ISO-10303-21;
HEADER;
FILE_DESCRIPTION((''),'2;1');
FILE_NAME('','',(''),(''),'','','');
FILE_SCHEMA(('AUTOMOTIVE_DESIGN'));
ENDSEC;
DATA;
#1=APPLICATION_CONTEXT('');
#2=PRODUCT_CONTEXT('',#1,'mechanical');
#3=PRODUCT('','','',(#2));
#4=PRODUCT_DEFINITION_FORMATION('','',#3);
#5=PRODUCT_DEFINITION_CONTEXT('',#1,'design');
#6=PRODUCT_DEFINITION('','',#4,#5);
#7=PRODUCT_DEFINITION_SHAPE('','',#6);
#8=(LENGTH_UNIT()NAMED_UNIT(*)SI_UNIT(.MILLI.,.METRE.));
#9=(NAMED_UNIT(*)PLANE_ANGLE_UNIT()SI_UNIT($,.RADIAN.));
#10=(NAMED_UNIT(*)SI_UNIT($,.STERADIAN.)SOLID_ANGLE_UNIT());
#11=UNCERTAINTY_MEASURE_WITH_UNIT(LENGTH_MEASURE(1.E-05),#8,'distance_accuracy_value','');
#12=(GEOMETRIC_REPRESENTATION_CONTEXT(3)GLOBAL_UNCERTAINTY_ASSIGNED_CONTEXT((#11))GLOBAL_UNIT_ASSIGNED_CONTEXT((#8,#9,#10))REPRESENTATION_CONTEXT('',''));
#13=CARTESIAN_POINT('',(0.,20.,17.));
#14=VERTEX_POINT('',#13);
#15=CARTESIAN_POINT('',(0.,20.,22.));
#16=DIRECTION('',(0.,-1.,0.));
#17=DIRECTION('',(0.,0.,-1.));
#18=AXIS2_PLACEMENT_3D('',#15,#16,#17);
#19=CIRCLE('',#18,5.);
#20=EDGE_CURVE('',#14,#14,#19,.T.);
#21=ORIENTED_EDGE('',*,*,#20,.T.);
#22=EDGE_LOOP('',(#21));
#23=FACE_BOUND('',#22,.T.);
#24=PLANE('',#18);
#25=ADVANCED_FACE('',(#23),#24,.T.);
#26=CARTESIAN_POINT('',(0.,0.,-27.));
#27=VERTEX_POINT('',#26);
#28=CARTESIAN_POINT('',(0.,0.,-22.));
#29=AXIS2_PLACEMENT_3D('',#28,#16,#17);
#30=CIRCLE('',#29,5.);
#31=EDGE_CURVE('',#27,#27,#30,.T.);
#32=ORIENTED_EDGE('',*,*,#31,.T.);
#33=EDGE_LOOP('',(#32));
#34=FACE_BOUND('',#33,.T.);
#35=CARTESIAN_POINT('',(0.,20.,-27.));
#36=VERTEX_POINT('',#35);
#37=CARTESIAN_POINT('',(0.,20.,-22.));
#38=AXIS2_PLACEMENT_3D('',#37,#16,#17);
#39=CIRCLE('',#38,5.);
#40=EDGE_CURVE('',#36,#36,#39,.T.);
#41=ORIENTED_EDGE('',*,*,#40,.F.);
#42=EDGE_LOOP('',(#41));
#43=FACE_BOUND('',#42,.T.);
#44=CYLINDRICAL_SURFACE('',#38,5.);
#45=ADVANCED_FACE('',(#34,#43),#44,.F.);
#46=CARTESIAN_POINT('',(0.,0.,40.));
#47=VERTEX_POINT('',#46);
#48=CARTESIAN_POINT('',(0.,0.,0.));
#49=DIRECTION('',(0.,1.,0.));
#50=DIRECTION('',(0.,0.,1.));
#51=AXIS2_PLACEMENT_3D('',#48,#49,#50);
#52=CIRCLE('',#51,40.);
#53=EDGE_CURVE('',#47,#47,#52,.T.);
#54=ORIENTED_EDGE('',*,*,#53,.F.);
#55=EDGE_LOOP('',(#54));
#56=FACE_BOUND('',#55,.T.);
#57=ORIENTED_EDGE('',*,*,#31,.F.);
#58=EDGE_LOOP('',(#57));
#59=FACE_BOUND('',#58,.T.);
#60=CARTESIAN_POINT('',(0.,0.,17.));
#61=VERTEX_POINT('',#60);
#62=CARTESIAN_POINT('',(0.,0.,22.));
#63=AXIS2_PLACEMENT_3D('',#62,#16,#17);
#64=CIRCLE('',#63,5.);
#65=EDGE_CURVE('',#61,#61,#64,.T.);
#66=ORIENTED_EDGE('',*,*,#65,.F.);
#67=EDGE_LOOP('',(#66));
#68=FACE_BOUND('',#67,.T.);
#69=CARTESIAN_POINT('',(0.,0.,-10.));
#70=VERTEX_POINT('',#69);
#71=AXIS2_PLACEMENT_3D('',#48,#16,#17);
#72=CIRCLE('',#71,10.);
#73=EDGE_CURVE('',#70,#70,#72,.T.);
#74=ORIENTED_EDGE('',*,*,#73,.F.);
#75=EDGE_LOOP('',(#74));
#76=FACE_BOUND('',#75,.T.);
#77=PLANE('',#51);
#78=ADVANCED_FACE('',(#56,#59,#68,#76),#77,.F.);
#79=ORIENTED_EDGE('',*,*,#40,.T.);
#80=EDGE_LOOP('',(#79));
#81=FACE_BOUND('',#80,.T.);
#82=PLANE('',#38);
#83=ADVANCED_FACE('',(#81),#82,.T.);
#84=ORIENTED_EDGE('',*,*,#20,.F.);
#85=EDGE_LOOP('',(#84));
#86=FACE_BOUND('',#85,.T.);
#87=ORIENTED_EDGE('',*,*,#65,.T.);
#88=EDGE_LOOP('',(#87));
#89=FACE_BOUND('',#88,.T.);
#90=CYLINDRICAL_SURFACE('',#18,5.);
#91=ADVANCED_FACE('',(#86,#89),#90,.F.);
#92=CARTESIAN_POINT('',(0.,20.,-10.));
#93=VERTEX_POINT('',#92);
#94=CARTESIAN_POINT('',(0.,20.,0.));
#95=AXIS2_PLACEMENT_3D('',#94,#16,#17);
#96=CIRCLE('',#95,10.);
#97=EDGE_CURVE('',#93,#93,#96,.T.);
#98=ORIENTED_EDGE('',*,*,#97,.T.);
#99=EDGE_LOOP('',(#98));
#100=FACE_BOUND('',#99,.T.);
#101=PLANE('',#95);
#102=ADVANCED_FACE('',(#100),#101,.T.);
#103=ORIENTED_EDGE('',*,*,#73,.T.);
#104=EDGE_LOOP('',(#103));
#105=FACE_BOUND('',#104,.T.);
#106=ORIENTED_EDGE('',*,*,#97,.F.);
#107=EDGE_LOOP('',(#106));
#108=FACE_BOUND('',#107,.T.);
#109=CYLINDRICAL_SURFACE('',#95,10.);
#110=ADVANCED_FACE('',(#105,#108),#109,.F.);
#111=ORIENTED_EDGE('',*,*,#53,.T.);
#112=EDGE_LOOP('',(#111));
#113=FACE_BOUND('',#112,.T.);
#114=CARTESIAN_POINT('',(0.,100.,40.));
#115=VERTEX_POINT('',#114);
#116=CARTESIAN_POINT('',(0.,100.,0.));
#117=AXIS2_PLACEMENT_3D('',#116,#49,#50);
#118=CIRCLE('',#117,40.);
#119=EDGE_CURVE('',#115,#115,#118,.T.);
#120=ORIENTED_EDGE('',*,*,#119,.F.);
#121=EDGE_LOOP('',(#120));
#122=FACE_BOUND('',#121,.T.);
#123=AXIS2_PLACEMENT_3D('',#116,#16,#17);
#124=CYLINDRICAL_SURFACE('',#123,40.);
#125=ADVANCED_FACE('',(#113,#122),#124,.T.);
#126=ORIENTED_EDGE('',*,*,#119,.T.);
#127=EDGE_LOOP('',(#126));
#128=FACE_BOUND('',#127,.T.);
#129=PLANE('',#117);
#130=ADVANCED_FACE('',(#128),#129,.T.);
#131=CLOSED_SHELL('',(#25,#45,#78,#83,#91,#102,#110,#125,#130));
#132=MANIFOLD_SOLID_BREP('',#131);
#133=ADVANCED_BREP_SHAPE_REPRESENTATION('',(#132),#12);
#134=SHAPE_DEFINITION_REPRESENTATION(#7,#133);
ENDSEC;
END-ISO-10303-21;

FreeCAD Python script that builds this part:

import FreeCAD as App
import Part
import Sketcher
from FreeCAD import Vector

doc = App.newDocument("Part")
body = doc.addObject("PartDesign::Body", "Body")

# Sketch on XZ plane
sketch1 = doc.addObject("Sketcher::SketchObject", "Sketch")
body.addObject(sketch1)
sketch1.AttachmentSupport = (doc.XZ_Plane, [""])
sketch1.MapMode = "FlatFace"
sketch1.addGeometry(Part.Circle(Vector(0, 0, 0), Vector(0, 0, 1), 40), False)
sketch1.addConstraint([
    Sketcher.Constraint("Coincident", 0, 3, -1, 1),
    Sketcher.Constraint("Diameter", 0, 80.0),
])
pad1 = doc.addObject("PartDesign::Pad", "Pad")
body.addObject(pad1)
pad1.Profile = sketch1
pad1.Length = 100
pad1.Reversed = True

# Sketch on XZ plane
sketch2 = doc.addObject("Sketcher::SketchObject", "Sketch001")
body.addObject(sketch2)
sketch2.AttachmentSupport = (doc.XZ_Plane, [""])
sketch2.MapMode = "FlatFace"
sketch2.addGeometry([
    Part.Circle(Vector(0, 0, 0), Vector(0, 0, 1), 10),
    Part.Circle(Vector(0, 22, 0), Vector(0, 0, 1), 5),
    Part.Circle(Vector(0, -22, 0), Vector(0, 0, 1), 5),
], False)
sketch2.addConstraint([
    Sketcher.Constraint("Coincident", 0, 3, -1, 1),
    Sketcher.Constraint("Equal", 1, 2),
    Sketcher.Constraint("Symmetric", 1, 3, 2, 3, -1, 1),
    Sketcher.Constraint("PointOnObject", 1, 3, -2),
    Sketcher.Constraint("Diameter", 0, 20.0),
    Sketcher.Constraint("Diameter", 1, 10.0),
    Sketcher.Constraint("DistanceY", -1, 1, 1, 3, 22.0),
])
pocket1 = doc.addObject("PartDesign::Pocket", "Pocket")
body.addObject(pocket1)
pocket1.Profile = sketch2
pocket1.Length = 20

doc.recompute()
